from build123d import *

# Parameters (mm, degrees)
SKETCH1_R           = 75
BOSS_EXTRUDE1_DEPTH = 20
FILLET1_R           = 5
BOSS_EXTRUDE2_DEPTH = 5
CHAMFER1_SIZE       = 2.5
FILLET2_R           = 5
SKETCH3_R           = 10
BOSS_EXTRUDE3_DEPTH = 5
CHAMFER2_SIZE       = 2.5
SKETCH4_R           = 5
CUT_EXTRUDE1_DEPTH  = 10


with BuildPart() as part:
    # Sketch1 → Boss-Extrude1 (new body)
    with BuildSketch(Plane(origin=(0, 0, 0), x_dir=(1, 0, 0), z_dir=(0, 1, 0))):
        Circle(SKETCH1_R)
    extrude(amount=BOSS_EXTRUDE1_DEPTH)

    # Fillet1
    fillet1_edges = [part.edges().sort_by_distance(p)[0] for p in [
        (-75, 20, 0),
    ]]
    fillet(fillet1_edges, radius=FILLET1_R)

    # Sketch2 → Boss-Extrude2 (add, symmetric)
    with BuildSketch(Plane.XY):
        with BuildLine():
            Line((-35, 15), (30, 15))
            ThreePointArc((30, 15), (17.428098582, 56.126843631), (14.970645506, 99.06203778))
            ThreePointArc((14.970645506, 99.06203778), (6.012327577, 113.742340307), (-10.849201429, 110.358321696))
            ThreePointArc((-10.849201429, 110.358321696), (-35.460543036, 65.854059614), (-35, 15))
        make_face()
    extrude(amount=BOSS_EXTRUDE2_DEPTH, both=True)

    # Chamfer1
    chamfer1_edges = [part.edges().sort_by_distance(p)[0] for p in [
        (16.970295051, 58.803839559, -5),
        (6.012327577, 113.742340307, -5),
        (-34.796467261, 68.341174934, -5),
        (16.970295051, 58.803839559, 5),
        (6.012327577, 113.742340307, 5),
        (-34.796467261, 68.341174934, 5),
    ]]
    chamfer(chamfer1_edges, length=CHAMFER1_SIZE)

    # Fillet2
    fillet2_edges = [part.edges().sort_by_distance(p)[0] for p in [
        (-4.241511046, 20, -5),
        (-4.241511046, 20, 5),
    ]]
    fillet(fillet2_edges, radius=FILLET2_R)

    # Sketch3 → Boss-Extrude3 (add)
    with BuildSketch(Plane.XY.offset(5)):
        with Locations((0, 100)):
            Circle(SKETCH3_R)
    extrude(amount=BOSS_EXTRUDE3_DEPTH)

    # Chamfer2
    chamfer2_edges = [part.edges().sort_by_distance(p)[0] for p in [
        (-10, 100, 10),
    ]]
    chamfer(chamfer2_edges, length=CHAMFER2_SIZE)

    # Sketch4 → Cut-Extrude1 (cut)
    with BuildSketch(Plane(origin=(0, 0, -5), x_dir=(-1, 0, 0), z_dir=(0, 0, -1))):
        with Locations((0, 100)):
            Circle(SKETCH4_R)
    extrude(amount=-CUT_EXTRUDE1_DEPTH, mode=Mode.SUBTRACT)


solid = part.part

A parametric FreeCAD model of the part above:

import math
import FreeCAD as App
import Part
import Sketcher


def edges_at(feature, points):
    """Names of the edges that pass closest to the given points."""
    edges = feature.Shape.Edges
    near = lambda p: min(range(len(edges)), key=lambda i: edges[i].distToShape(Part.Vertex(*p))[0])
    return sorted({f"Edge{near(p) + 1}" for p in points})

doc = App.newDocument("Part")
params = doc.addObject("Spreadsheet::Sheet", "Params")
for row, (alias, value) in enumerate([
    ("sketch1_diameter", "150 mm"),
    ("pad1_length", "20 mm"),
    ("fillet_radius", "5 mm"),
    ("sketch2_radius", "180 mm"),
    ("sketch2_radius2", "15 mm"),
    ("sketch2_radius3", "100 mm"),
    ("sketch2_width", "65 mm"),
    ("pad2_length", "10 mm"),
    ("chamfer_size", "2.5 mm"),
    ("fillet2_radius", "5 mm"),
    ("sketch3_diameter", "20 mm"),
    ("pad3_length", "5 mm"),
    ("chamfer2_size", "2.5 mm"),
    ("sketch4_diameter", "10 mm"),
    ("pocket1_length", "10 mm"),
], start=1):
    params.set(f"A{row}", alias)
    params.set(f"B{row}", "=" + value)
    params.setAlias(f"B{row}", alias)

body = doc.addObject("PartDesign::Body", "Body")

# Sketch on XZ plane
sketch1 = body.newObject("Sketcher::SketchObject", "Sketch")
sketch1.AttachmentSupport = (doc.getObject("XZ_Plane"), [""])
sketch1.MapMode = "FlatFace"
sketch1.addGeometry(Part.Circle(App.Vector(0, 0, 0), App.Vector(0, 0, 1), 75), False)
sketch1.addConstraint(Sketcher.Constraint("Coincident", 0, 3, -1, 1))
sketch1.addConstraint(Sketcher.Constraint("Diameter", 0, 150.0))
sketch1.setExpression("Constraints[1]", "Params.sketch1_diameter")
pad1 = body.newObject("PartDesign::Pad", "Pad")
pad1.Profile = sketch1
pad1.setExpression("Length", "Params.pad1_length")
pad1.Reversed = True
doc.recompute()

fillet = body.newObject("PartDesign::Fillet", "Fillet")
fillet.Base = (pad1, edges_at(pad1, [(-75, 20, 0)]))
fillet.setExpression("Radius", "Params.fillet_radius")

# Sketch on XY plane
sketch2 = body.newObject("Sketcher::SketchObject", "Sketch001")
sketch2.AttachmentSupport = (doc.getObject("XY_Plane"), [""])
sketch2.MapMode = "FlatFace"
sketch2.addGeometry(Part.LineSegment(App.Vector(-35, 15, 0), App.Vector(30, 15, 0)), False)
sketch2.addGeometry(Part.ArcOfCircle(Part.Circle(App.Vector(195, 88, 0), App.Vector(0, 0, 1), 180), math.radians(176), math.radians(204)), False)
sketch2.addGeometry(Part.ArcOfCircle(Part.Circle(App.Vector(0, 100, 0), App.Vector(0, 0, 1), 15), math.radians(-4), math.radians(136)), False)
sketch2.addGeometry(Part.ArcOfCircle(Part.Circle(App.Vector(61, 41, 0), App.Vector(0, 0, 1), 100), math.radians(136), math.radians(195)), False)
sketch2.addConstraint(Sketcher.Constraint("Coincident", 0, 2, 1, 2))
sketch2.addConstraint(Sketcher.Constraint("Tangent", 1, 1, 2, 1))
sketch2.addConstraint(Sketcher.Constraint("Tangent", 2, 2, 3, 1))
sketch2.addConstraint(Sketcher.Constraint("Coincident", 3, 2, 0, 1))
sketch2.addConstraint(Sketcher.Constraint("Horizontal", 0))
sketch2.addConstraint(Sketcher.Constraint("PointOnObject", 2, 3, -2))
sketch2.addConstraint(Sketcher.Constraint("Radius", 1, 180.0))
sketch2.addConstraint(Sketcher.Constraint("Radius", 2, 15.0))
sketch2.addConstraint(Sketcher.Constraint("Radius", 3, 100.0))
sketch2.addConstraint(Sketcher.Constraint("DistanceX", 0, 1, 0, 2, 65.0))
sketch2.addConstraint(Sketcher.Constraint("DistanceY", -1, 1, 2, 3, 100.0))
sketch2.addConstraint(Sketcher.Constraint("DistanceX", -1, 1, 0, 2, 30.0))
sketch2.addConstraint(Sketcher.Constraint("DistanceY", -1, 1, 0, 2, 15.0))
sketch2.setExpression("Constraints[6]", "Params.sketch2_radius")
sketch2.setExpression("Constraints[7]", "Params.sketch2_radius2")
sketch2.setExpression("Constraints[8]", "Params.sketch2_radius3")
sketch2.setExpression("Constraints[9]", "Params.sketch2_width")
pad2 = body.newObject("PartDesign::Pad", "Pad001")
pad2.Profile = sketch2
pad2.setExpression("Length", "Params.pad2_length")
pad2.Midplane = True
doc.recompute()

chamfer = body.newObject("PartDesign::Chamfer", "Chamfer")
chamfer.Base = (pad2, edges_at(pad2, [
    (16.97, 58.804, -5),
    (6.012, 113.742, -5),
    (-34.796, 68.341, -5),
    (16.97, 58.804, 5),
    (6.012, 113.742, 5),
    (-34.796, 68.341, 5),
]))
chamfer.setExpression("Size", "Params.chamfer_size")
doc.recompute()

fillet2 = body.newObject("PartDesign::Fillet", "Fillet001")
fillet2.Base = (chamfer, edges_at(chamfer, [(-4.242, 20, -5), (-4.242, 20, 5)]))
fillet2.setExpression("Radius", "Params.fillet2_radius")

# Sketch on XY plane
sketch3 = body.newObject("Sketcher::SketchObject", "Sketch002")
sketch3.AttachmentSupport = (doc.getObject("XY_Plane"), [""])
sketch3.MapMode = "FlatFace"
sketch3.AttachmentOffset = App.Placement(App.Vector(0, 0, 5), App.Rotation())
sketch3.addGeometry(Part.Circle(App.Vector(0, 100, 0), App.Vector(0, 0, 1), 10), False)
sketch3.addConstraint(Sketcher.Constraint("PointOnObject", 0, 3, -2))
sketch3.addConstraint(Sketcher.Constraint("Diameter", 0, 20.0))
sketch3.addConstraint(Sketcher.Constraint("DistanceY", -1, 1, 0, 3, 100.0))
sketch3.setExpression("Constraints[1]", "Params.sketch3_diameter")
pad3 = body.newObject("PartDesign::Pad", "Pad002")
pad3.Profile = sketch3
pad3.setExpression("Length", "Params.pad3_length")
doc.recompute()

chamfer2 = body.newObject("PartDesign::Chamfer", "Chamfer001")
chamfer2.Base = (pad3, edges_at(pad3, [(-10, 100, 10)]))
chamfer2.setExpression("Size", "Params.chamfer2_size")

# Sketch on XY plane
sketch4 = body.newObject("Sketcher::SketchObject", "Sketch003")
sketch4.AttachmentSupport = (doc.getObject("XY_Plane"), [""])
sketch4.MapMode = "FlatFace"
sketch4.AttachmentOffset = App.Placement(App.Vector(0, 0, -5), App.Rotation())
sketch4.addGeometry(Part.Circle(App.Vector(0, 100, 0), App.Vector(0, 0, 1), 5), False)
sketch4.addConstraint(Sketcher.Constraint("PointOnObject", 0, 3, -2))
sketch4.addConstraint(Sketcher.Constraint("Diameter", 0, 10.0))
sketch4.addConstraint(Sketcher.Constraint("DistanceY", -1, 1, 0, 3, 100.0))
sketch4.setExpression("Constraints[1]", "Params.sketch4_diameter")
pocket1 = body.newObject("PartDesign::Pocket", "Pocket")
pocket1.Profile = sketch4
pocket1.setExpression("Length", "Params.pocket1_length")
pocket1.Reversed = True

doc.recompute()
